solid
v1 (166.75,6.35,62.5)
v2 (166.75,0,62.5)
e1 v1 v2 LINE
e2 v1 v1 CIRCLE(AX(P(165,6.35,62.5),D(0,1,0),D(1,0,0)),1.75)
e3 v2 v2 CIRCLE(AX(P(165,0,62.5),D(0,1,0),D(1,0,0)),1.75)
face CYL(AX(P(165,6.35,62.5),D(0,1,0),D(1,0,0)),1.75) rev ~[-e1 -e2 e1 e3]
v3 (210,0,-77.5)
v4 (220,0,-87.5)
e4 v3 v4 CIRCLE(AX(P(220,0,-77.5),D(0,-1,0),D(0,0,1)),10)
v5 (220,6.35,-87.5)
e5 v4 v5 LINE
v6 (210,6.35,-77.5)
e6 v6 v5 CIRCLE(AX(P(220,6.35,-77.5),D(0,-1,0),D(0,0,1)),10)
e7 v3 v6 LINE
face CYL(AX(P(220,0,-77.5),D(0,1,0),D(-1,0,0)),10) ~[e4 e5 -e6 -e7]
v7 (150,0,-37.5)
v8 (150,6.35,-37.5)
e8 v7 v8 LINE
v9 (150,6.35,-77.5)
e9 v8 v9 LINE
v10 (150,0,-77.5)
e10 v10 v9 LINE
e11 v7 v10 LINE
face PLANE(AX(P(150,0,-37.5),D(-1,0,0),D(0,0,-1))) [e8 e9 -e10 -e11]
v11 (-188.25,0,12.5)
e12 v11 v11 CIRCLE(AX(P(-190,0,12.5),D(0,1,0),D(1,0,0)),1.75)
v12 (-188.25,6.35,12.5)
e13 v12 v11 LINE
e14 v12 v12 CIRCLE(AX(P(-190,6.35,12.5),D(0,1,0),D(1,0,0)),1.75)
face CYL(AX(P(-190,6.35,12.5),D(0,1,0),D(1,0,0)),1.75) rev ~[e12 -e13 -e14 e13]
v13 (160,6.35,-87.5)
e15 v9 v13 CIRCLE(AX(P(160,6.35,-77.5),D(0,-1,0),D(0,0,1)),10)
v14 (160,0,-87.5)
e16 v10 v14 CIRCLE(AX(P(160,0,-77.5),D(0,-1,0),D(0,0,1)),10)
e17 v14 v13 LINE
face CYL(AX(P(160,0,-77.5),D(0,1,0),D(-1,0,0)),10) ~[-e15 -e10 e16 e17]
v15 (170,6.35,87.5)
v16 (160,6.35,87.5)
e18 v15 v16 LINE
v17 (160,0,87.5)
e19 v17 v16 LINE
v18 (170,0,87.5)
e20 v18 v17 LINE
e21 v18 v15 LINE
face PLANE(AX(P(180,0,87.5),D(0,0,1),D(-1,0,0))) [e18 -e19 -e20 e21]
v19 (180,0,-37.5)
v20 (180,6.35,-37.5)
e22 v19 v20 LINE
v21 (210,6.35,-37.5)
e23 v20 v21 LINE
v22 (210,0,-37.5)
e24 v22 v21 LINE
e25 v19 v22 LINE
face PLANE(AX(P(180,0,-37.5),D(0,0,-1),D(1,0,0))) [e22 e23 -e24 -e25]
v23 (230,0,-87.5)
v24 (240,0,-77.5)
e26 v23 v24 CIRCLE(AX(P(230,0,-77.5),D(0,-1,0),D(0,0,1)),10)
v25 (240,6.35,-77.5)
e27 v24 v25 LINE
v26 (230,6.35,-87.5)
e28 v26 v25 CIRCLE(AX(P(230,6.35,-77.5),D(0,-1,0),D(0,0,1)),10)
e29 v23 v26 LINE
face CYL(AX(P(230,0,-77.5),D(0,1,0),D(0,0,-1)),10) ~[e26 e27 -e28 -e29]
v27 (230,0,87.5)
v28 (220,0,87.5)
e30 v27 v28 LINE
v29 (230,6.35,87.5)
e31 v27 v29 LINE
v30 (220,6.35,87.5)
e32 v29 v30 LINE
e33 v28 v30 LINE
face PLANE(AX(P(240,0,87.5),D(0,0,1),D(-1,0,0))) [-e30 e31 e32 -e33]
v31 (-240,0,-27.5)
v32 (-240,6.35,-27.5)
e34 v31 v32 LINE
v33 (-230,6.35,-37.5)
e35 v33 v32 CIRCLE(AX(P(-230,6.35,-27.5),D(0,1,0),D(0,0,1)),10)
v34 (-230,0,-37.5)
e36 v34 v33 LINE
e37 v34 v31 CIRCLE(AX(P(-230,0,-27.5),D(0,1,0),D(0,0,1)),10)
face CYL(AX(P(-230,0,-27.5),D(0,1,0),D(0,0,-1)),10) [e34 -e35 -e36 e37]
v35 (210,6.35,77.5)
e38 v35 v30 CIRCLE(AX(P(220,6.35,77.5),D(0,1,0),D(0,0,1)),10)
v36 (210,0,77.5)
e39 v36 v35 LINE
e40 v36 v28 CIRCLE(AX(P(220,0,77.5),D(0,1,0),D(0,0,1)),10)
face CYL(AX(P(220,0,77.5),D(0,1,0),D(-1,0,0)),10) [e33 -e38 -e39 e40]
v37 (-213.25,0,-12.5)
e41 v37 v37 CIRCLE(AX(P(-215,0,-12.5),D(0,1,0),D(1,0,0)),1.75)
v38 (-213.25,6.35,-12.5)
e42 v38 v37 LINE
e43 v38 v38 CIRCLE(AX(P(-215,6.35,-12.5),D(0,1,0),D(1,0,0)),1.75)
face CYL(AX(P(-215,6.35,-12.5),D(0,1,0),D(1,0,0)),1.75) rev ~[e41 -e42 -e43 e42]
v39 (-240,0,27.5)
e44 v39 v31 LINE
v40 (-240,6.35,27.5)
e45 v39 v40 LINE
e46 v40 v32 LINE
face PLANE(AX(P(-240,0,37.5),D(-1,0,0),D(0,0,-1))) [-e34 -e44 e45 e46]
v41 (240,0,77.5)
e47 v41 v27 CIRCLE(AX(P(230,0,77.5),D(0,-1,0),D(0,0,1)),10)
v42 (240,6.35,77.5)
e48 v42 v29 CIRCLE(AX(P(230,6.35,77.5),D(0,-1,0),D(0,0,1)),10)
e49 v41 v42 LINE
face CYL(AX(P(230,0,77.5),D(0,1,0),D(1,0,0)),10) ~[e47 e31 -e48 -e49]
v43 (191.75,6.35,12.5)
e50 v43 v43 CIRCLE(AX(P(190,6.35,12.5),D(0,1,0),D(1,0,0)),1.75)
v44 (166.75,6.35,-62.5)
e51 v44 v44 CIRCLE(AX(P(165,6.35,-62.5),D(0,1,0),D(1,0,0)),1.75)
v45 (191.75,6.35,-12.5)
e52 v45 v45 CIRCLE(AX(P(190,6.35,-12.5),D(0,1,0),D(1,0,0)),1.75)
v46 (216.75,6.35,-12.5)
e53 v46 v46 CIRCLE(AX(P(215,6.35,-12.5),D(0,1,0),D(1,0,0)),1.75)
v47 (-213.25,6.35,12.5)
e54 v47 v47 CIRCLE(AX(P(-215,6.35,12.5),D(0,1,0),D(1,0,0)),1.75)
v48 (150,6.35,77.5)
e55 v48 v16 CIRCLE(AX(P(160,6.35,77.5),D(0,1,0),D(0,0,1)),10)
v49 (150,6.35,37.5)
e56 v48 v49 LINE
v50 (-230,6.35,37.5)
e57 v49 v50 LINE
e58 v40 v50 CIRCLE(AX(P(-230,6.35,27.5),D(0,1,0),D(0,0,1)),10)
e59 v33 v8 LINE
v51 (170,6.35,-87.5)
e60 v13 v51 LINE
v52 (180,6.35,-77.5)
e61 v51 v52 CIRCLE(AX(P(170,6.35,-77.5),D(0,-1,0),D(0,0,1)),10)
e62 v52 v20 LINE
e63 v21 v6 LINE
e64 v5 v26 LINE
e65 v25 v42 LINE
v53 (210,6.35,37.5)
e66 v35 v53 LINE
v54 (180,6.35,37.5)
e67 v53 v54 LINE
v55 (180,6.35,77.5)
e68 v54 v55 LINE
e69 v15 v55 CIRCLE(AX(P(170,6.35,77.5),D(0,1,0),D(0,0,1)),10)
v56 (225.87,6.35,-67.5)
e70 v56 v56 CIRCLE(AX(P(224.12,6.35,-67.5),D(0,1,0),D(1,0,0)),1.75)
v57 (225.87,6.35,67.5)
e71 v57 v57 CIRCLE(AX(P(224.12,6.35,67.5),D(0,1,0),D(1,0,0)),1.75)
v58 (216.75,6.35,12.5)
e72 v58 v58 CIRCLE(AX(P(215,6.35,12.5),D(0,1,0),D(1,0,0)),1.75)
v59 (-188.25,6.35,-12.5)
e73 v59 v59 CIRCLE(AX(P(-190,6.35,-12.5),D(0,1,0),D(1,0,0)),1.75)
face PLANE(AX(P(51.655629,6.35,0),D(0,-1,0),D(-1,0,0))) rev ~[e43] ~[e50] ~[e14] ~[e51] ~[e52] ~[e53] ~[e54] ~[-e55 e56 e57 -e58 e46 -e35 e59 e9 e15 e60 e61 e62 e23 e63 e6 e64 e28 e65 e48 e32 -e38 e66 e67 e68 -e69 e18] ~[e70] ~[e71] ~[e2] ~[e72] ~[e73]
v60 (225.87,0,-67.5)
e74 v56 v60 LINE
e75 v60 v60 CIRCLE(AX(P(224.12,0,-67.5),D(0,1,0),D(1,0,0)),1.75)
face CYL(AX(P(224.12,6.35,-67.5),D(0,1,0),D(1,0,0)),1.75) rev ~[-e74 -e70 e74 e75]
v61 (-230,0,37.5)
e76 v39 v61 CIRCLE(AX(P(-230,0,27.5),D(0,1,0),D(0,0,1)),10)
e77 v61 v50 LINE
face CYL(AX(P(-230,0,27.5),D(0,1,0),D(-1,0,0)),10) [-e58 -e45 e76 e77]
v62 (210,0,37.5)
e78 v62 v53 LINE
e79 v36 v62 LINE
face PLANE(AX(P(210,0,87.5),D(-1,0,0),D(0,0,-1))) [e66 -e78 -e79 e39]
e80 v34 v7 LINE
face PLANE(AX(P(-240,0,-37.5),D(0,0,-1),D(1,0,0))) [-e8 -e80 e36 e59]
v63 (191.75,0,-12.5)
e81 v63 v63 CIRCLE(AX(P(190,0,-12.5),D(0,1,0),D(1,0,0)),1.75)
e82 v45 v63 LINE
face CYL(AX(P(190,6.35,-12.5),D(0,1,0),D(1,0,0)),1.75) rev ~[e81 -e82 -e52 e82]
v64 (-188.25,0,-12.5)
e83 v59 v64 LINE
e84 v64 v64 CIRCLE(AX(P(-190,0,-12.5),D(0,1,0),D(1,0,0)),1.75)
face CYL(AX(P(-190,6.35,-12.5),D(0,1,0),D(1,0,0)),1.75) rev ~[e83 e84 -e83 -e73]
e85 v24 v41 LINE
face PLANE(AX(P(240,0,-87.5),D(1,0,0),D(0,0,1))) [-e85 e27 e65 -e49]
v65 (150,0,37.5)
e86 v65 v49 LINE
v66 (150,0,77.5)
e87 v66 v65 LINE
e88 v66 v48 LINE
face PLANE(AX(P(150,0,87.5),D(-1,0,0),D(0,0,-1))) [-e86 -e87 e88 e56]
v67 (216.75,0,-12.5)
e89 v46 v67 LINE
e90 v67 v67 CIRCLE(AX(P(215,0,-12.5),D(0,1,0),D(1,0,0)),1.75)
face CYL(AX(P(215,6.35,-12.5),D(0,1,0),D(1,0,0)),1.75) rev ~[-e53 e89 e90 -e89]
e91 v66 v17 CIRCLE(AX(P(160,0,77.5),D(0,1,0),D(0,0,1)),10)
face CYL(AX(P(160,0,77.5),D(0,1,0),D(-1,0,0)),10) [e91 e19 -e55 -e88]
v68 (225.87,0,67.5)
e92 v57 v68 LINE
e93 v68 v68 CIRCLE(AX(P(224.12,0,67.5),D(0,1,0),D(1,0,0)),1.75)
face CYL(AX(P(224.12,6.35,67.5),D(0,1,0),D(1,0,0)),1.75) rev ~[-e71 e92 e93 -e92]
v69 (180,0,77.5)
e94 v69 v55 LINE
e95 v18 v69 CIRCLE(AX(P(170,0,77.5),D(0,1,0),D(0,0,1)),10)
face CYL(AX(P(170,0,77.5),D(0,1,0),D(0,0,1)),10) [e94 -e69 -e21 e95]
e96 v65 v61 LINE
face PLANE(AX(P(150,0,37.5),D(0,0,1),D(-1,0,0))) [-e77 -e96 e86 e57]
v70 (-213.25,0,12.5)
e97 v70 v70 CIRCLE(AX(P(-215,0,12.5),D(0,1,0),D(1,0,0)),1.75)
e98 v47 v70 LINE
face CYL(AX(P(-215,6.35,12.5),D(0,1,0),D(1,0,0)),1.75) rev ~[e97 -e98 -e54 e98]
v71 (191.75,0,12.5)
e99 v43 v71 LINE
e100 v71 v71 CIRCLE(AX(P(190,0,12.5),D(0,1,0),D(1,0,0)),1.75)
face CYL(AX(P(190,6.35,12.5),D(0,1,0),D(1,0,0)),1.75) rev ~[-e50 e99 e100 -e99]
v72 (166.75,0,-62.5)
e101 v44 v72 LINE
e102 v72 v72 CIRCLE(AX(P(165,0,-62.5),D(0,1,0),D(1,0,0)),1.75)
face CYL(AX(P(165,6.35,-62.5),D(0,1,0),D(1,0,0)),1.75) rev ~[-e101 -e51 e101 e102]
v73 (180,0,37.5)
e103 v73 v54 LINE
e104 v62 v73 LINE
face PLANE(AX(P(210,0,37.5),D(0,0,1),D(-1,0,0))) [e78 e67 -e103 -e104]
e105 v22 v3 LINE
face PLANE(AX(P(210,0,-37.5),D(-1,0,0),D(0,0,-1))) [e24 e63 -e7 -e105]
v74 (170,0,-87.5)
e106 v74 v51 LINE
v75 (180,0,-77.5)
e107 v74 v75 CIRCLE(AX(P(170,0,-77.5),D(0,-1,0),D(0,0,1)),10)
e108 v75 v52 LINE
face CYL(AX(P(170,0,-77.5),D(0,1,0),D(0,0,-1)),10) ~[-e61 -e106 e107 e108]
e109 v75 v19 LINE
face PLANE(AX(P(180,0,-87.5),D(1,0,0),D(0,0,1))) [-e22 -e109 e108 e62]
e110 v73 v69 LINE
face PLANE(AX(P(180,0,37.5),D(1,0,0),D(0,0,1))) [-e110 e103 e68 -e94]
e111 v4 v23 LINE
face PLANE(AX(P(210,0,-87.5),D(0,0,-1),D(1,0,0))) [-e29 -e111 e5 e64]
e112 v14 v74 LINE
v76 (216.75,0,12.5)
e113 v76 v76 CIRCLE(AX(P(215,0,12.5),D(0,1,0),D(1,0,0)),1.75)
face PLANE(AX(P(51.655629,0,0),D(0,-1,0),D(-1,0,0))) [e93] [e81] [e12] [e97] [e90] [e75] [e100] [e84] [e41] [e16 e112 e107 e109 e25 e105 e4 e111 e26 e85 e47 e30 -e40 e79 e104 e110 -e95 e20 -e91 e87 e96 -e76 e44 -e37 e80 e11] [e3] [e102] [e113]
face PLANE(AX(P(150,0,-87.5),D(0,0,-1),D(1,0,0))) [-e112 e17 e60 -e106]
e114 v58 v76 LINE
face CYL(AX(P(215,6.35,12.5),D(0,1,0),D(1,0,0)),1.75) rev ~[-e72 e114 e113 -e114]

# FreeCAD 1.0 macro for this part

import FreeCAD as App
import Part
import Sketcher
Q = App.Units.Quantity


def edges_at(feature, points):
    """Names of the edges that pass closest to the given points."""
    edges = feature.Shape.Edges
    near = lambda p: min(range(len(edges)), key=lambda i: edges[i].distToShape(Part.Vertex(*p))[0])
    return sorted({f"Edge{near(p) + 1}" for p in points})


def add_polygon(sketch, points):
    """Adds a closed chain of lines whose ends are joined by coincident constraints."""
    first, n = sketch.GeometryCount, len(points)
    for a, b in zip(points, points[1:] + points[:1]):
        sketch.addGeometry(Part.LineSegment(App.Vector(*a, 0), App.Vector(*b, 0)), False)
    for i in range(n):
        sketch.addConstraint(Sketcher.Constraint("Coincident", first + i, 2, first + (i + 1) % n, 1))

doc = App.newDocument("Part")
params = doc.addObject("Spreadsheet::Sheet", "Params")
for row, (alias, value) in enumerate([
    ("sketch1_width", "390 mm"),
    ("sketch1_width2", "30 mm"),
    ("sketch1_height", "75 mm"),
    ("sketch1_height2", "50 mm"),
    ("pad1_length", "6.35 mm"),
    ("sketch2_diameter", "3.5 mm"),
    ("pocket1_length", "6.35 mm"),
    ("linearpattern_pitch", "25 mm"),
    ("linearpattern2_pitch", "25 mm"),
    ("sketch3_diameter", "3.5 mm"),
    ("pocket2_length", "6.35 mm"),
    ("fillet_radius", "10 mm"),
    ("sketch4_diameter", "3.5 mm"),
    ("sketch5_diameter", "3.5 mm"),
    ("linearpattern3_pitch", "405 mm"),
    ("sketch6_diameter", "3.5 mm"),
    ("pocket5_length", "6.35 mm"),
    ("sketch7_diameter", "3.5 mm"),
    ("pocket6_length", "6.35 mm"),
    ("sketch8_diameter", "3.5 mm"),
    ("pocket7_length", "6.35 mm"),
], start=1):
    params.set(f"A{row}", alias)
    params.set(f"B{row}", "=" + value)
    params.setAlias(f"B{row}", alias)

body = doc.addObject("PartDesign::Body", "Body")

sketch1 = doc.addObject("Sketcher::SketchObject", "Sketch")
body.addObject(sketch1)
sketch1.AttachmentSupport = (doc.XZ_Plane, [""])
sketch1.MapMode = "FlatFace"
add_polygon(sketch1, [(150, -38), (-240, -38), (-240, 38), (150, 38), (150, 88), (180, 88), (180, 38), (210, 38), (210, 88), (240, 88), (240, -88), (210, -88), (210, -38), (180, -38), (180, -88), (150, -88)])
sketch1.addConstraint([
    Sketcher.Constraint("Horizontal", 0),
    Sketcher.Constraint("Vertical", 1),
    Sketcher.Constraint("Horizontal", 2),
    Sketcher.Constraint("Vertical", 3),
    Sketcher.Constraint("Horizontal", 4),
    Sketcher.Constraint("Vertical", 5),
    Sketcher.Constraint("Horizontal", 6),
    Sketcher.Constraint("Vertical", 7),
    Sketcher.Constraint("Horizontal", 8),
    Sketcher.Constraint("Vertical", 9),
    Sketcher.Constraint("Horizontal", 10),
    Sketcher.Constraint("Vertical", 11),
    Sketcher.Constraint("Horizontal", 12),
    Sketcher.Constraint("Vertical", 13),
    Sketcher.Constraint("Horizontal", 14),
    Sketcher.Constraint("Vertical", 15),
    Sketcher.Constraint("Symmetric", 7, 2, 10, 2, -1),
    Sketcher.Constraint("Symmetric", 5, 2, 12, 2, -1),
    Sketcher.Constraint("Symmetric", 3, 2, 14, 2, -1),
    Sketcher.Constraint("Horizontal", 2, 2, 5, 2),
    Sketcher.Constraint("Horizontal", 4, 2, 7, 2),
    Sketcher.Constraint("Horizontal", 0, 2, 11, 2),
    Sketcher.Constraint("Equal", 4, 6),
    Sketcher.Constraint("Equal", 6, 8),
    Sketcher.Constraint("DistanceX", 0, 2, 0, 1, Q("390 mm")),
    Sketcher.Constraint("DistanceX", 4, 1, 4, 2, Q("30 mm")),
    Sketcher.Constraint("DistanceY", 1, 1, 1, 2, Q("75 mm")),
    Sketcher.Constraint("DistanceY", 3, 1, 3, 2, Q("50 mm")),
    Sketcher.Constraint("DistanceX", 0, 2, -1, 1, Q("240 mm")),
])
sketch1.setExpression("Constraints[40]", "Params.sketch1_width")
sketch1.setExpression("Constraints[41]", "Params.sketch1_width2")
sketch1.setExpression("Constraints[42]", "Params.sketch1_height")
sketch1.setExpression("Constraints[43]", "Params.sketch1_height2")
pad1 = doc.addObject("PartDesign::Pad", "Pad")
body.addObject(pad1)
pad1.Profile = sketch1
pad1.setExpression("Length", "Params.pad1_length")
pad1.Reversed = True

sketch2 = doc.addObject("Sketcher::SketchObject", "Sketch001")
body.addObject(sketch2)
sketch2.AttachmentSupport = (doc.XZ_Plane, [""])
sketch2.MapMode = "FlatFace"
sketch2.AttachmentOffset = App.Placement(App.Vector(0, 0, -6.35), App.Rotation())
sketch2.addGeometry(Part.Circle(App.Vector(190, -12.5, 0), App.Vector(0, 0, 1), 1.8), False)
sketch2.addConstraint([
    Sketcher.Constraint("Diameter", 0, Q("3.5 mm")),
    Sketcher.Constraint("DistanceX", -1, 1, 0, 3, Q("190 mm")),
    Sketcher.Constraint("DistanceY", 0, 3, -1, 1, Q("12.5 mm")),
])
sketch2.setExpression("Constraints[0]", "Params.sketch2_diameter")
pocket1 = doc.addObject("PartDesign::Pocket", "Pocket")
body.addObject(pocket1)
pocket1.Profile = sketch2
pocket1.setExpression("Length", "Params.pocket1_length")
pocket1.Reversed = True
doc.recompute()

linearpattern = doc.addObject("PartDesign::LinearPattern", "LinearPattern")
body.addObject(linearpattern)
linearpattern.Originals = [pocket1]
linearpattern.Direction = (doc.X_Axis, [""])
linearpattern.Mode = "offset"
linearpattern.setExpression("Offset", "Params.linearpattern_pitch")
linearpattern.Occurrences = 2
body.Tip = linearpattern
doc.recompute()

linearpattern2 = doc.addObject("PartDesign::LinearPattern", "LinearPattern001")
body.addObject(linearpattern2)
linearpattern2.Originals = [pocket1]
linearpattern2.Direction = (doc.Z_Axis, [""])
linearpattern2.Mode = "offset"
linearpattern2.setExpression("Offset", "Params.linearpattern2_pitch")
linearpattern2.Occurrences = 2
body.Tip = linearpattern2

sketch3 = doc.addObject("Sketcher::SketchObject", "Sketch002")
body.addObject(sketch3)
sketch3.AttachmentSupport = (doc.XZ_Plane, [""])
sketch3.MapMode = "FlatFace"
sketch3.AttachmentOffset = App.Placement(App.Vector(0, 0, -6.35), App.Rotation())
sketch3.addGeometry(Part.Circle(App.Vector(215, 12.5, 0), App.Vector(0, 0, 1), 1.8), False)
sketch3.addConstraint([
    Sketcher.Constraint("Diameter", 0, Q("3.5 mm")),
    Sketcher.Constraint("DistanceX", -1, 1, 0, 3, Q("215 mm")),
    Sketcher.Constraint("DistanceY", -1, 1, 0, 3, Q("12.5 mm")),
])
sketch3.setExpression("Constraints[0]", "Params.sketch3_diameter")
pocket2 = doc.addObject("PartDesign::Pocket", "Pocket001")
body.addObject(pocket2)
pocket2.Profile = sketch3
pocket2.setExpression("Length", "Params.pocket2_length")
pocket2.Reversed = True
doc.recompute()

fillet = doc.addObject("PartDesign::Fillet", "Fillet")
body.addObject(fillet)
fillet.Base = (pocket2, edges_at(pocket2, [
    (-240, 3.175, -37.5),
    (150, 3.175, -87.5),
    (180, 3.175, -87.5),
    (210, 3.175, -87.5),
    (240, 3.175, -87.5),
    (240, 3.175, 87.5),
    (210, 3.175, 87.5),
    (180, 3.175, 87.5),
    (150, 3.175, 87.5),
    (-240, 3.175, 37.5),
]))
fillet.setExpression("Radius", "Params.fillet_radius")

sketch4 = doc.addObject("Sketcher::SketchObject", "Sketch003")
body.addObject(sketch4)
sketch4.AttachmentSupport = (doc.XZ_Plane, [""])
sketch4.MapMode = "FlatFace"
sketch4.AttachmentOffset = App.Placement(App.Vector(0, 0, -6.35), App.Rotation())
sketch4.addGeometry([
    Part.Circle(App.Vector(224.1, -67.5, 0), App.Vector(0, 0, 1), 1.8),
    Part.Circle(App.Vector(224.1, 67.5, 0), App.Vector(0, 0, 1), 1.8),
], False)
sketch4.addConstraint([
    Sketcher.Constraint("Equal", 0, 1),
    Sketcher.Constraint("Symmetric", 0, 3, 1, 3, -1),
    Sketcher.Constraint("Diameter", 0, Q("3.5 mm")),
    Sketcher.Constraint("DistanceY", 0, 3, 1, 3, Q("135 mm")),
    Sketcher.Constraint("DistanceX", -1, 1, 0, 3, Q("224.12 mm")),
])
sketch4.setExpression("Constraints[2]", "Params.sketch4_diameter")
pocket3 = doc.addObject("PartDesign::Pocket", "Pocket002")
body.addObject(pocket3)
pocket3.Profile = sketch4
pocket3.Type = "ThroughAll"
pocket3.Reversed = True

sketch5 = doc.addObject("Sketcher::SketchObject", "Sketch004")
body.addObject(sketch5)
sketch5.AttachmentSupport = (doc.XZ_Plane, [""])
sketch5.MapMode = "FlatFace"
sketch5.AttachmentOffset = App.Placement(App.Vector(0, 0, -6.35), App.Rotation())
sketch5.addGeometry([
    Part.Circle(App.Vector(165, -62.5, 0), App.Vector(0, 0, 1), 1.8),
    Part.Circle(App.Vector(165, 62.5, 0), App.Vector(0, 0, 1), 1.8),
], False)
sketch5.addConstraint([
    Sketcher.Constraint("Equal", 0, 1),
    Sketcher.Constraint("Symmetric", 0, 3, 1, 3, -1),
    Sketcher.Constraint("Diameter", 0, Q("3.5 mm")),
    Sketcher.Constraint("DistanceX", -1, 1, 0, 3, Q("165 mm")),
    Sketcher.Constraint("DistanceY", 0, 3, 1, 3, Q("125 mm")),
])
sketch5.setExpression("Constraints[2]", "Params.sketch5_diameter")
pocket4 = doc.addObject("PartDesign::Pocket", "Pocket003")
body.addObject(pocket4)
pocket4.Profile = sketch5
pocket4.Type = "ThroughAll"
pocket4.Reversed = True
doc.recompute()

linearpattern3 = doc.addObject("PartDesign::LinearPattern", "LinearPattern002")
body.addObject(linearpattern3)
linearpattern3.Originals = [pocket1]
linearpattern3.Direction = (doc.X_Axis, [""])
linearpattern3.Mode = "offset"
linearpattern3.setExpression("Offset", "Params.linearpattern3_pitch")
linearpattern3.Occurrences = 2
linearpattern3.Reversed = True
body.Tip = linearpattern3

sketch6 = doc.addObject("Sketcher::SketchObject", "Sketch005")
body.addObject(sketch6)
sketch6.AttachmentSupport = (doc.XZ_Plane, [""])
sketch6.MapMode = "FlatFace"
sketch6.AttachmentOffset = App.Placement(App.Vector(0, 0, -6.35), App.Rotation())
sketch6.addGeometry(Part.Circle(App.Vector(-215, 12.5, 0), App.Vector(0, 0, 1), 1.8), False)
sketch6.addConstraint([
    Sketcher.Constraint("Diameter", 0, Q("3.5 mm")),
    Sketcher.Constraint("DistanceX", 0, 3, -1, 1, Q("215 mm")),
    Sketcher.Constraint("DistanceY", -1, 1, 0, 3, Q("12.5 mm")),
])
sketch6.setExpression("Constraints[0]", "Params.sketch6_diameter")
pocket5 = doc.addObject("PartDesign::Pocket", "Pocket004")
body.addObject(pocket5)
pocket5.Profile = sketch6
pocket5.setExpression("Length", "Params.pocket5_length")
pocket5.Reversed = True

sketch7 = doc.addObject("Sketcher::SketchObject", "Sketch006")
body.addObject(sketch7)
sketch7.AttachmentSupport = (doc.XZ_Plane, [""])
sketch7.MapMode = "FlatFace"
sketch7.AttachmentOffset = App.Placement(App.Vector(0, 0, -6.35), App.Rotation())
sketch7.addGeometry(Part.Circle(App.Vector(-190, 12.5, 0), App.Vector(0, 0, 1), 1.8), False)
sketch7.addConstraint([
    Sketcher.Constraint("Diameter", 0, Q("3.5 mm")),
    Sketcher.Constraint("DistanceX", 0, 3, -1, 1, Q("190 mm")),
    Sketcher.Constraint("DistanceY", -1, 1, 0, 3, Q("12.5 mm")),
])
sketch7.setExpression("Constraints[0]", "Params.sketch7_diameter")
pocket6 = doc.addObject("PartDesign::Pocket", "Pocket005")
body.addObject(pocket6)
pocket6.Profile = sketch7
pocket6.setExpression("Length", "Params.pocket6_length")
pocket6.Reversed = True

sketch8 = doc.addObject("Sketcher::SketchObject", "Sketch007")
body.addObject(sketch8)
sketch8.AttachmentSupport = (doc.XZ_Plane, [""])
sketch8.MapMode = "FlatFace"
sketch8.AttachmentOffset = App.Placement(App.Vector(0, 0, -6.35), App.Rotation())
sketch8.addGeometry(Part.Circle(App.Vector(-190, -12.5, 0), App.Vector(0, 0, 1), 1.8), False)
sketch8.addConstraint([
    Sketcher.Constraint("Diameter", 0, Q("3.5 mm")),
    Sketcher.Constraint("DistanceX", 0, 3, -1, 1, Q("190 mm")),
    Sketcher.Constraint("DistanceY", 0, 3, -1, 1, Q("12.5 mm")),
])
sketch8.setExpression("Constraints[0]", "Params.sketch8_diameter")
pocket7 = doc.addObject("PartDesign::Pocket", "Pocket006")
body.addObject(pocket7)
pocket7.Profile = sketch8
pocket7.setExpression("Length", "Params.pocket7_length")
pocket7.Reversed = True

doc.recompute()
